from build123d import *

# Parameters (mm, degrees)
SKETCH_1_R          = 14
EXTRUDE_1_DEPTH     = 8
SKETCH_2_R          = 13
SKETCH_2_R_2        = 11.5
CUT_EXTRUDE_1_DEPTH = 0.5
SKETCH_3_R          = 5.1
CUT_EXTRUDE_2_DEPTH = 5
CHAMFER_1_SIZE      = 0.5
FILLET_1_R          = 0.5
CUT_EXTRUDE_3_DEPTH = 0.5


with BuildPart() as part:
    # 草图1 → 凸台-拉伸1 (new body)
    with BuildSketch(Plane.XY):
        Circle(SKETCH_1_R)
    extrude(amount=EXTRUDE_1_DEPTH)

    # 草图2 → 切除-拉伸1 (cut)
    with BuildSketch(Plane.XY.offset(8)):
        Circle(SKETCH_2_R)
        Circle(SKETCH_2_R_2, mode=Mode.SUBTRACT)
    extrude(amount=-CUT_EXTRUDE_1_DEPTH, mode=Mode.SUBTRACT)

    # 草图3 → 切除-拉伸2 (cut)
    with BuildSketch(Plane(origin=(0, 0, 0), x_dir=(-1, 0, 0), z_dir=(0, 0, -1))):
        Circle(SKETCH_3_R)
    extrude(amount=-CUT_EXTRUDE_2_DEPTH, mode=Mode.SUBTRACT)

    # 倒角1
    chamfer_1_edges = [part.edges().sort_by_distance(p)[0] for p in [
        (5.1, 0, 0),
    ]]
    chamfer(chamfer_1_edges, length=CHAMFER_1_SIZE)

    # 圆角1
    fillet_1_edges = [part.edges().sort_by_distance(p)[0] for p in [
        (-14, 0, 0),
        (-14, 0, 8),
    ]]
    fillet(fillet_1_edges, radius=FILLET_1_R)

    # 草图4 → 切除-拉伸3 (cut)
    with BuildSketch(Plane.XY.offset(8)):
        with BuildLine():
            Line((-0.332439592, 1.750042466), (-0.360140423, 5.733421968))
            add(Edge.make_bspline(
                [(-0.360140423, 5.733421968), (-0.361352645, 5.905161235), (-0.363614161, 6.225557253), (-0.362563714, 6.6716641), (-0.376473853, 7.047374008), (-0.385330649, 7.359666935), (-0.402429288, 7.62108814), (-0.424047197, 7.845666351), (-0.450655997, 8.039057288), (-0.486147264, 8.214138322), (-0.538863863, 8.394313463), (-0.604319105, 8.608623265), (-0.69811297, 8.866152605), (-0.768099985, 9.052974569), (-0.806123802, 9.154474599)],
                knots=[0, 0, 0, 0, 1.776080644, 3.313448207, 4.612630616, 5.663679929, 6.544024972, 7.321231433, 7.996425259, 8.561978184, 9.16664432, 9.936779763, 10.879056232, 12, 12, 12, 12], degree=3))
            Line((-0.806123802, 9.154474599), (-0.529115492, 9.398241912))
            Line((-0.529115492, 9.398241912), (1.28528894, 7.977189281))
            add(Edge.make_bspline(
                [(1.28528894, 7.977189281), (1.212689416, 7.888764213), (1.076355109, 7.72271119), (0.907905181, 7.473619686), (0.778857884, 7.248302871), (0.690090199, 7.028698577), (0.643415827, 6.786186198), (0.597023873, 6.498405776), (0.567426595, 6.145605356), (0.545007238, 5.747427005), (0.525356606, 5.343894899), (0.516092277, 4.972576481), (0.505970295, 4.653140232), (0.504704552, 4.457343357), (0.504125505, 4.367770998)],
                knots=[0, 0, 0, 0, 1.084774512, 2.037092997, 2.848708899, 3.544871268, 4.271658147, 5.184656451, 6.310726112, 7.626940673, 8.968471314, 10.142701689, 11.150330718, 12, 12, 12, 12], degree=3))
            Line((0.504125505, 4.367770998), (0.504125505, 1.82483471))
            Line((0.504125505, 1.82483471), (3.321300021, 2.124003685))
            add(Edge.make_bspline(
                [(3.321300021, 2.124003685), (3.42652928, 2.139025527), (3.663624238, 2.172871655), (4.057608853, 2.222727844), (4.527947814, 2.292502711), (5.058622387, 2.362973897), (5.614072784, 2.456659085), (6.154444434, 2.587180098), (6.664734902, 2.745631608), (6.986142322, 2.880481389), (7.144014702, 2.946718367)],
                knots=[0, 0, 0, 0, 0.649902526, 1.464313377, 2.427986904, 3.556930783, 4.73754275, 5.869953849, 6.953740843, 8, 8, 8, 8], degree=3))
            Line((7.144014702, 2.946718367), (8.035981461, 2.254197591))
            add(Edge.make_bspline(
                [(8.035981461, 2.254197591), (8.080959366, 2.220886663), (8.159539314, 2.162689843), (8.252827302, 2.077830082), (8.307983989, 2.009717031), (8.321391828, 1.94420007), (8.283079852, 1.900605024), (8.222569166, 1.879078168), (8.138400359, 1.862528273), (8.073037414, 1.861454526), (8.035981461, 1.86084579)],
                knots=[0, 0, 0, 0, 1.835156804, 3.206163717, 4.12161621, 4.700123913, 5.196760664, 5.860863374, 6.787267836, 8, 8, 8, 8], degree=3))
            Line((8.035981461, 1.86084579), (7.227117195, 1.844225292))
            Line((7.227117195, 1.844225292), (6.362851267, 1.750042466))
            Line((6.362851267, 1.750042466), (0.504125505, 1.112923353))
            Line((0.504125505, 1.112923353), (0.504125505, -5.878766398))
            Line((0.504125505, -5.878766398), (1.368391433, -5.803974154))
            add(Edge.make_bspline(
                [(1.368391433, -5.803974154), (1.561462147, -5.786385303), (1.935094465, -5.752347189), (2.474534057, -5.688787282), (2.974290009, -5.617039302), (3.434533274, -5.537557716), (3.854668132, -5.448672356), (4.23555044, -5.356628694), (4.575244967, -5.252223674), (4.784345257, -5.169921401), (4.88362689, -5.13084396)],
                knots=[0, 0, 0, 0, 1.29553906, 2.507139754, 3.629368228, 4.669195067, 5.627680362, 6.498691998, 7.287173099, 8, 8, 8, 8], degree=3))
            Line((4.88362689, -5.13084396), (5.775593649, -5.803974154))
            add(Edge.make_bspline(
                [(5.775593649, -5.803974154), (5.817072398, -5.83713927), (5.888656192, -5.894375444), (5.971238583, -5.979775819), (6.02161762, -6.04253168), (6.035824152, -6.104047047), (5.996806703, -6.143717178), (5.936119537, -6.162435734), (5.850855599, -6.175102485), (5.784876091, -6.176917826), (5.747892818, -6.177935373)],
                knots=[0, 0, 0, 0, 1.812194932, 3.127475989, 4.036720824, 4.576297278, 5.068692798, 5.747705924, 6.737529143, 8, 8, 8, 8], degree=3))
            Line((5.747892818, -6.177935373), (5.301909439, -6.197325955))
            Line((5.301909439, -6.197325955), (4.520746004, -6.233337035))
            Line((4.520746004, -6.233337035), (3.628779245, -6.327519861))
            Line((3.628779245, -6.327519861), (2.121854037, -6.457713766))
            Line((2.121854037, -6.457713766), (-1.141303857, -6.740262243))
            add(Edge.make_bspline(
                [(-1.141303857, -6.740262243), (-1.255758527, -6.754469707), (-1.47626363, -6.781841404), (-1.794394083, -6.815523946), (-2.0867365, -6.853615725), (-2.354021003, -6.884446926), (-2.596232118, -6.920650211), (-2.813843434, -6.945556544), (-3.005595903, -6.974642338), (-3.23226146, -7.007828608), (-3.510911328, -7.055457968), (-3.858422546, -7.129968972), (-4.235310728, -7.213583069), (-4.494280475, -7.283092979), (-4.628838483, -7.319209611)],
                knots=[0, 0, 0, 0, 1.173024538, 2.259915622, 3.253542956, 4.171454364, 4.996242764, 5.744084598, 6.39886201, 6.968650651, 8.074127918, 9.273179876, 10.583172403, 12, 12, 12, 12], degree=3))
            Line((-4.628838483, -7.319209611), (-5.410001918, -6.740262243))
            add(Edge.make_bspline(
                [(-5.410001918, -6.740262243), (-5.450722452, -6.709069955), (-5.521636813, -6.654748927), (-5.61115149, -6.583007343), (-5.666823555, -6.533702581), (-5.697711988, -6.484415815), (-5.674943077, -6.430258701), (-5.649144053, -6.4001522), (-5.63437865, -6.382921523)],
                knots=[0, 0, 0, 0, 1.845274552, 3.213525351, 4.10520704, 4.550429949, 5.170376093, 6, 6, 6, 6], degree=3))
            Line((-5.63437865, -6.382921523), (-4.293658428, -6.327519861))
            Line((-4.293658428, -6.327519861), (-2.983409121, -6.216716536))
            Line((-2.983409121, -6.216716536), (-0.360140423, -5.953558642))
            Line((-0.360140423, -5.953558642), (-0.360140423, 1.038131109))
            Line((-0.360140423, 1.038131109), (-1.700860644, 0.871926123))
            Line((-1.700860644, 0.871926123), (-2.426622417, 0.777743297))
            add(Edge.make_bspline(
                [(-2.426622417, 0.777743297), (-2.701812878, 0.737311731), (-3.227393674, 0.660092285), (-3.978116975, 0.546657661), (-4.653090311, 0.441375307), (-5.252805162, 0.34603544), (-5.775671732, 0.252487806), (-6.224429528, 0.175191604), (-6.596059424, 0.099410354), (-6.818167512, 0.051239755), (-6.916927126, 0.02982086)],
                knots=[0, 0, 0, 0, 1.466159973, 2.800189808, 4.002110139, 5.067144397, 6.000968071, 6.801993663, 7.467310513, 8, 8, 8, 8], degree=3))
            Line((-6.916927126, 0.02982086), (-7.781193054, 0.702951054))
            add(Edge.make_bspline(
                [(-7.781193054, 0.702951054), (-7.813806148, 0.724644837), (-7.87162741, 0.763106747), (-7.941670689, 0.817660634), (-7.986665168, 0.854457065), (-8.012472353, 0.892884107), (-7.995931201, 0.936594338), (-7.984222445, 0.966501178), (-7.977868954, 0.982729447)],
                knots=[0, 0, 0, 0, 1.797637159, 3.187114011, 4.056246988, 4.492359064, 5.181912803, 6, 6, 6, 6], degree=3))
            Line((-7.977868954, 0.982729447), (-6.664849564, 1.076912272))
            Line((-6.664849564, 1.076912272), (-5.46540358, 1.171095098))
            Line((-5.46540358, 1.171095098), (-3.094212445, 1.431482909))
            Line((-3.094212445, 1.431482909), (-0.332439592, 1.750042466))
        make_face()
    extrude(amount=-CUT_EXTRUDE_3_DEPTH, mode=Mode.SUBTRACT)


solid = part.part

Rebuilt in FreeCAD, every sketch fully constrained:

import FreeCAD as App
import Part
import Sketcher

V = App.Vector
Q = App.Units.Quantity


def edges_at(feature, points):
    """Names of the edges that pass closest to the given points."""
    edges = feature.Shape.Edges
    near = lambda p: min(range(len(edges)), key=lambda i: edges[i].distToShape(Part.Vertex(*p))[0])
    return sorted({f"Edge{near(p) + 1}" for p in points})

doc = App.newDocument("Part")
body = doc.addObject("PartDesign::Body", "Body")

# Sketch on XY plane
sketch1 = body.newObject("Sketcher::SketchObject", "Sketch")
sketch1.AttachmentSupport = (doc.getObject("XY_Plane"), [""])
sketch1.MapMode = "FlatFace"
sketch1.addGeometry(Part.Circle(V(0, 0, 0), V(0, 0, 1), 14), False)
sketch1.addConstraint(Sketcher.Constraint("Coincident", 0, 3, -1, 1))
sketch1.addConstraint(Sketcher.Constraint("Diameter", 0, Q("28 mm")))
pad1 = body.newObject("PartDesign::Pad", "Pad")
pad1.Profile = sketch1
pad1.Length = 8

# Sketch on XY plane
sketch2 = body.newObject("Sketcher::SketchObject", "Sketch001")
sketch2.AttachmentSupport = (doc.getObject("XY_Plane"), [""])
sketch2.MapMode = "FlatFace"
sketch2.AttachmentOffset = App.Placement(V(0, 0, 8), App.Rotation())
sketch2.addGeometry(Part.Circle(V(0, 0, 0), V(0, 0, 1), 13), False)
sketch2.addGeometry(Part.Circle(V(0, 0, 0), V(0, 0, 1), 12), False)
sketch2.addConstraint(Sketcher.Constraint("Coincident", 0, 3, -1, 1))
sketch2.addConstraint(Sketcher.Constraint("Coincident", 1, 3, -1, 1))
sketch2.addConstraint(Sketcher.Constraint("Diameter", 0, Q("26 mm")))
sketch2.addConstraint(Sketcher.Constraint("Diameter", 1, Q("23 mm")))
pocket1 = body.newObject("PartDesign::Pocket", "Pocket")
pocket1.Profile = sketch2
pocket1.Length = 0.5

# Sketch on XY plane
sketch3 = body.newObject("Sketcher::SketchObject", "Sketch002")
sketch3.AttachmentSupport = (doc.getObject("XY_Plane"), [""])
sketch3.MapMode = "FlatFace"
sketch3.addGeometry(Part.Circle(V(0, 0, 0), V(0, 0, 1), 5), False)
sketch3.addConstraint(Sketcher.Constraint("Coincident", 0, 3, -1, 1))
sketch3.addConstraint(Sketcher.Constraint("Diameter", 0, Q("10.2 mm")))
pocket2 = body.newObject("PartDesign::Pocket", "Pocket001")
pocket2.Profile = sketch3
pocket2.Length = 5
pocket2.Reversed = True
doc.recompute()

chamfer = body.newObject("PartDesign::Chamfer", "Chamfer")
chamfer.Base = (pocket2, edges_at(pocket2, [(5.1, 0, 0)]))
chamfer.Size = 0.5
doc.recompute()

fillet = body.newObject("PartDesign::Fillet", "Fillet")
fillet.Base = (chamfer, edges_at(chamfer, [(-14, 0, 0), (-14, 0, 8)]))
fillet.Radius = 0.5

# Sketch on XY plane
sketch4 = body.newObject("Sketcher::SketchObject", "Sketch003")
sketch4.AttachmentSupport = (doc.getObject("XY_Plane"), [""])
sketch4.MapMode = "FlatFace"
sketch4.AttachmentOffset = App.Placement(V(0, 0, 8), App.Rotation())
sketch4.addGeometry(Part.LineSegment(V(-0.36014, 5.733422, 0), V(-0.33244, 1.750042, 0)), False)
sketch4.addGeometry(Part.LineSegment(V(-0.33244, 1.750042, 0), V(-3.094212, 1.431483, 0)), False)
sketch4.addGeometry(Part.LineSegment(V(-3.094212, 1.431483, 0), V(-5.465404, 1.171095, 0)), False)
sketch4.addGeometry(Part.LineSegment(V(-5.465404, 1.171095, 0), V(-6.66485, 1.076912, 0)), False)
sketch4.addGeometry(Part.LineSegment(V(-6.66485, 1.076912, 0), V(-7.977869, 0.982729, 0)), False)
sketch4.addGeometry(Part.BSplineCurve([V(-7.781193, 0.702951, 0), V(-7.813806, 0.724645, 0), V(-7.871627, 0.763107, 0), V(-7.941671, 0.817661, 0), V(-7.986665, 0.854457, 0), V(-8.012472, 0.892884, 0), V(-7.995931, 0.936594, 0), V(-7.984222, 0.966501, 0), V(-7.977869, 0.982729, 0)], [4, 1, 1, 1, 1, 1, 4], [0, 1.797637159, 3.187114011, 4.056246988, 4.492359064, 5.181912803, 6], False, 3, [1, 1, 1, 1, 1, 1, 1, 1, 1], False), False)
sketch4.addGeometry(Part.LineSegment(V(-7.781193, 0.702951, 0), V(-6.916927, 0.029821, 0)), False)
sketch4.addGeometry(Part.BSplineCurve([V(-2.426622, 0.777743, 0), V(-2.701813, 0.737312, 0), V(-3.227394, 0.660092, 0), V(-3.978117, 0.546658, 0), V(-4.65309, 0.441375, 0), V(-5.252805, 0.346035, 0), V(-5.775672, 0.252488, 0), V(-6.22443, 0.175192, 0), V(-6.596059, 0.09941, 0), V(-6.818168, 0.05124, 0), V(-6.916927, 0.029821, 0)], [4, 1, 1, 1, 1, 1, 1, 1, 4], [0, 1.466159973, 2.800189808, 4.002110139, 5.067144397, 6.000968071, 6.801993663, 7.467310513, 8], False, 3, [1, 1, 1, 1, 1, 1, 1, 1, 1, 1, 1], False), False)
sketch4.addGeometry(Part.LineSegment(V(-2.426622, 0.777743, 0), V(-1.700861, 0.871926, 0)), False)
sketch4.addGeometry(Part.LineSegment(V(-1.700861, 0.871926, 0), V(-0.36014, 1.038131, 0)), False)
sketch4.addGeometry(Part.LineSegment(V(-0.36014, 1.038131, 0), V(-0.36014, -5.953559, 0)), False)
sketch4.addGeometry(Part.LineSegment(V(-0.36014, -5.953559, 0), V(-2.983409, -6.216717, 0)), False)
sketch4.addGeometry(Part.LineSegment(V(-2.983409, -6.216717, 0), V(-4.293658, -6.32752, 0)), False)
sketch4.addGeometry(Part.LineSegment(V(-4.293658, -6.32752, 0), V(-5.634379, -6.382922, 0)), False)
sketch4.addGeometry(Part.BSplineCurve([V(-5.410002, -6.740262, 0), V(-5.450722, -6.70907, 0), V(-5.521637, -6.654749, 0), V(-5.611151, -6.583007, 0), V(-5.666824, -6.533703, 0), V(-5.697712, -6.484416, 0), V(-5.674943, -6.430259, 0), V(-5.649144, -6.400152, 0), V(-5.634379, -6.382922, 0)], [4, 1, 1, 1, 1, 1, 4], [0, 1.845274552, 3.213525351, 4.10520704, 4.550429949, 5.170376093, 6], False, 3, [1, 1, 1, 1, 1, 1, 1, 1, 1], False), False)
sketch4.addGeometry(Part.LineSegment(V(-5.410002, -6.740262, 0), V(-4.628838, -7.31921, 0)), False)
sketch4.addGeometry(Part.BSplineCurve([V(-1.141304, -6.740262, 0), V(-1.255759, -6.75447, 0), V(-1.476264, -6.781841, 0), V(-1.794394, -6.815524, 0), V(-2.086737, -6.853616, 0), V(-2.354021, -6.884447, 0), V(-2.596232, -6.92065, 0), V(-2.813843, -6.945557, 0), V(-3.005596, -6.974642, 0), V(-3.232261, -7.007829, 0), V(-3.510911, -7.055458, 0), V(-3.858423, -7.129969, 0), V(-4.235311, -7.213583, 0), V(-4.49428, -7.283093, 0), V(-4.628838, -7.31921, 0)], [4, 1, 1, 1, 1, 1, 1, 1, 1, 1, 1, 1, 4], [0, 1.173024538, 2.259915622, 3.253542956, 4.171454364, 4.996242764, 5.744084598, 6.39886201, 6.968650651, 8.074127918, 9.273179876, 10.583172403, 12], False, 3, [1, 1, 1, 1, 1, 1, 1, 1, 1, 1, 1, 1, 1, 1, 1], False), False)
sketch4.addGeometry(Part.LineSegment(V(-1.141304, -6.740262, 0), V(2.121854, -6.457714, 0)), False)
sketch4.addGeometry(Part.LineSegment(V(2.121854, -6.457714, 0), V(3.628779, -6.32752, 0)), False)
sketch4.addGeometry(Part.LineSegment(V(3.628779, -6.32752, 0), V(4.520746, -6.233337, 0)), False)
sketch4.addGeometry(Part.LineSegment(V(4.520746, -6.233337, 0), V(5.301909, -6.197326, 0)), False)
sketch4.addGeometry(Part.LineSegment(V(5.301909, -6.197326, 0), V(5.747893, -6.177935, 0)), False)
sketch4.addGeometry(Part.BSplineCurve([V(5.775594, -5.803974, 0), V(5.817072, -5.837139, 0), V(5.888656, -5.894375, 0), V(5.971239, -5.979776, 0), V(6.021618, -6.042532, 0), V(6.035824, -6.104047, 0), V(5.996807, -6.143717, 0), V(5.93612, -6.162436, 0), V(5.850856, -6.175102, 0), V(5.784876, -6.176918, 0), V(5.747893, -6.177935, 0)], [4, 1, 1, 1, 1, 1, 1, 1, 4], [0, 1.812194932, 3.127475989, 4.036720824, 4.576297278, 5.068692798, 5.747705924, 6.737529143, 8], False, 3, [1, 1, 1, 1, 1, 1, 1, 1, 1, 1, 1], False), False)
sketch4.addGeometry(Part.LineSegment(V(5.775594, -5.803974, 0), V(4.883627, -5.130844, 0)), False)
sketch4.addGeometry(Part.BSplineCurve([V(1.368391, -5.803974, 0), V(1.561462, -5.786385, 0), V(1.935094, -5.752347, 0), V(2.474534, -5.688787, 0), V(2.97429, -5.617039, 0), V(3.434533, -5.537558, 0), V(3.854668, -5.448672, 0), V(4.23555, -5.356629, 0), V(4.575245, -5.252224, 0), V(4.784345, -5.169921, 0), V(4.883627, -5.130844, 0)], [4, 1, 1, 1, 1, 1, 1, 1, 4], [0, 1.29553906, 2.507139754, 3.629368228, 4.669195067, 5.627680362, 6.498691998, 7.287173099, 8], False, 3, [1, 1, 1, 1, 1, 1, 1, 1, 1, 1, 1], False), False)
sketch4.addGeometry(Part.LineSegment(V(1.368391, -5.803974, 0), V(0.504126, -5.878766, 0)), False)
sketch4.addGeometry(Part.LineSegment(V(0.504126, -5.878766, 0), V(0.504126, 1.112923, 0)), False)
sketch4.addGeometry(Part.LineSegment(V(0.504126, 1.112923, 0), V(6.362851, 1.750042, 0)), False)
sketch4.addGeometry(Part.LineSegment(V(6.362851, 1.750042, 0), V(7.227117, 1.844225, 0)), False)
sketch4.addGeometry(Part.LineSegment(V(7.227117, 1.844225, 0), V(8.035981, 1.860846, 0)), False)
sketch4.addGeometry(Part.BSplineCurve([V(8.035981, 2.254198, 0), V(8.080959, 2.220887, 0), V(8.159539, 2.16269, 0), V(8.252827, 2.07783, 0), V(8.307984, 2.009717, 0), V(8.321392, 1.9442, 0), V(8.28308, 1.900605, 0), V(8.222569, 1.879078, 0), V(8.1384, 1.862528, 0), V(8.073037, 1.861455, 0), V(8.035981, 1.860846, 0)], [4, 1, 1, 1, 1, 1, 1, 1, 4], [0, 1.835156804, 3.206163717, 4.12161621, 4.700123913, 5.196760664, 5.860863374, 6.787267836, 8], False, 3, [1, 1, 1, 1, 1, 1, 1, 1, 1, 1, 1], False), False)
sketch4.addGeometry(Part.LineSegment(V(8.035981, 2.254198, 0), V(7.144015, 2.946718, 0)), False)
sketch4.addGeometry(Part.BSplineCurve([V(3.3213, 2.124004, 0), V(3.426529, 2.139026, 0), V(3.663624, 2.172872, 0), V(4.057609, 2.222728, 0), V(4.527948, 2.292503, 0), V(5.058622, 2.362974, 0), V(5.614073, 2.456659, 0), V(6.154444, 2.58718, 0), V(6.664735, 2.745632, 0), V(6.986142, 2.880481, 0), V(7.144015, 2.946718, 0)], [4, 1, 1, 1, 1, 1, 1, 1, 4], [0, 0.649902526, 1.464313377, 2.427986904, 3.556930783, 4.73754275, 5.869953849, 6.953740843, 8], False, 3, [1, 1, 1, 1, 1, 1, 1, 1, 1, 1, 1], False), False)
sketch4.addGeometry(Part.LineSegment(V(3.3213, 2.124004, 0), V(0.504126, 1.824835, 0)), False)
sketch4.addGeometry(Part.LineSegment(V(0.504126, 1.824835, 0), V(0.504126, 4.367771, 0)), False)
sketch4.addGeometry(Part.BSplineCurve([V(1.285289, 7.977189, 0), V(1.212689, 7.888764, 0), V(1.076355, 7.722711, 0), V(0.907905, 7.47362, 0), V(0.778858, 7.248303, 0), V(0.69009, 7.028699, 0), V(0.643416, 6.786186, 0), V(0.597024, 6.498406, 0), V(0.567427, 6.145605, 0), V(0.545007, 5.747427, 0), V(0.525357, 5.343895, 0), V(0.516092, 4.972576, 0), V(0.50597, 4.65314, 0), V(0.504705, 4.457343, 0), V(0.504126, 4.367771, 0)], [4, 1, 1, 1, 1, 1, 1, 1, 1, 1, 1, 1, 4], [0, 1.084774512, 2.037092997, 2.848708899, 3.544871268, 4.271658147, 5.184656451, 6.310726112, 7.626940673, 8.968471314, 10.142701689, 11.150330718, 12], False, 3, [1, 1, 1, 1, 1, 1, 1, 1, 1, 1, 1, 1, 1, 1, 1], False), False)
sketch4.addGeometry(Part.LineSegment(V(1.285289, 7.977189, 0), V(-0.529115, 9.398242, 0)), False)
sketch4.addGeometry(Part.LineSegment(V(-0.529115, 9.398242, 0), V(-0.806124, 9.154475, 0)), False)
sketch4.addGeometry(Part.BSplineCurve([V(-0.36014, 5.733422, 0), V(-0.361353, 5.905161, 0), V(-0.363614, 6.225557, 0), V(-0.362564, 6.671664, 0), V(-0.376474, 7.047374, 0), V(-0.385331, 7.359667, 0), V(-0.402429, 7.621088, 0), V(-0.424047, 7.845666, 0), V(-0.450656, 8.039057, 0), V(-0.486147, 8.214138, 0), V(-0.538864, 8.394313, 0), V(-0.604319, 8.608623, 0), V(-0.698113, 8.866153, 0), V(-0.7681, 9.052975, 0), V(-0.806124, 9.154475, 0)], [4, 1, 1, 1, 1, 1, 1, 1, 1, 1, 1, 1, 4], [0, 1.776080644, 3.313448207, 4.612630616, 5.663679929, 6.544024972, 7.321231433, 7.996425259, 8.561978184, 9.16664432, 9.936779763, 10.879056232, 12], False, 3, [1, 1, 1, 1, 1, 1, 1, 1, 1, 1, 1, 1, 1, 1, 1], False), False)
sketch4.addConstraint(Sketcher.Constraint("Block", 5))
sketch4.addConstraint(Sketcher.Constraint("Block", 7))
sketch4.addConstraint(Sketcher.Constraint("Block", 14))
sketch4.addConstraint(Sketcher.Constraint("Block", 16))
sketch4.addConstraint(Sketcher.Constraint("Block", 22))
sketch4.addConstraint(Sketcher.Constraint("Block", 24))
sketch4.addConstraint(Sketcher.Constraint("Block", 30))
sketch4.addConstraint(Sketcher.Constraint("Block", 32))
sketch4.addConstraint(Sketcher.Constraint("Block", 35))
sketch4.addConstraint(Sketcher.Constraint("Block", 38))
sketch4.addConstraint(Sketcher.Constraint("Coincident", 0, 2, 1, 1))
sketch4.addConstraint(Sketcher.Constraint("Coincident", 1, 2, 2, 1))
sketch4.addConstraint(Sketcher.Constraint("Coincident", 2, 2, 3, 1))
sketch4.addConstraint(Sketcher.Constraint("Coincident", 3, 2, 4, 1))
sketch4.addConstraint(Sketcher.Constraint("Coincident", 4, 2, 5, 2))
sketch4.addConstraint(Sketcher.Constraint("Coincident", 5, 1, 6, 1))
sketch4.addConstraint(Sketcher.Constraint("Coincident", 6, 2, 7, 2))
sketch4.addConstraint(Sketcher.Constraint("Coincident", 7, 1, 8, 1))
sketch4.addConstraint(Sketcher.Constraint("Coincident", 8, 2, 9, 1))
sketch4.addConstraint(Sketcher.Constraint("Coincident", 9, 2, 10, 1))
sketch4.addConstraint(Sketcher.Constraint("Coincident", 10, 2, 11, 1))
sketch4.addConstraint(Sketcher.Constraint("Coincident", 11, 2, 12, 1))
sketch4.addConstraint(Sketcher.Constraint("Coincident", 12, 2, 13, 1))
sketch4.addConstraint(Sketcher.Constraint("Coincident", 13, 2, 14, 2))
sketch4.addConstraint(Sketcher.Constraint("Coincident", 14, 1, 15, 1))
sketch4.addConstraint(Sketcher.Constraint("Coincident", 15, 2, 16, 2))
sketch4.addConstraint(Sketcher.Constraint("Coincident", 16, 1, 17, 1))
sketch4.addConstraint(Sketcher.Constraint("Coincident", 17, 2, 18, 1))
sketch4.addConstraint(Sketcher.Constraint("Coincident", 18, 2, 19, 1))
sketch4.addConstraint(Sketcher.Constraint("Coincident", 19, 2, 20, 1))
sketch4.addConstraint(Sketcher.Constraint("Coincident", 20, 2, 21, 1))
sketch4.addConstraint(Sketcher.Constraint("Coincident", 21, 2, 22, 2))
sketch4.addConstraint(Sketcher.Constraint("Coincident", 22, 1, 23, 1))
sketch4.addConstraint(Sketcher.Constraint("Coincident", 23, 2, 24, 2))
sketch4.addConstraint(Sketcher.Constraint("Coincident", 24, 1, 25, 1))
sketch4.addConstraint(Sketcher.Constraint("Coincident", 25, 2, 26, 1))
sketch4.addConstraint(Sketcher.Constraint("Coincident", 26, 2, 27, 1))
sketch4.addConstraint(Sketcher.Constraint("Coincident", 27, 2, 28, 1))
sketch4.addConstraint(Sketcher.Constraint("Coincident", 28, 2, 29, 1))
sketch4.addConstraint(Sketcher.Constraint("Coincident", 29, 2, 30, 2))
sketch4.addConstraint(Sketcher.Constraint("Coincident", 30, 1, 31, 1))
sketch4.addConstraint(Sketcher.Constraint("Coincident", 31, 2, 32, 2))
sketch4.addConstraint(Sketcher.Constraint("Coincident", 32, 1, 33, 1))
sketch4.addConstraint(Sketcher.Constraint("Coincident", 33, 2, 34, 1))
sketch4.addConstraint(Sketcher.Constraint("Coincident", 34, 2, 35, 2))
sketch4.addConstraint(Sketcher.Constraint("Coincident", 35, 1, 36, 1))
sketch4.addConstraint(Sketcher.Constraint("Coincident", 36, 2, 37, 1))
sketch4.addConstraint(Sketcher.Constraint("Coincident", 37, 2, 38, 2))
sketch4.addConstraint(Sketcher.Constraint("Coincident", 38, 1, 0, 1))
sketch4.addConstraint(Sketcher.Constraint("Vertical", 10))
sketch4.addConstraint(Sketcher.Constraint("Vertical", 26))
sketch4.addConstraint(Sketcher.Constraint("Vertical", 34))
sketch4.addConstraint(Sketcher.Constraint("DistanceY", 10, 2, 10, 1, Q("6.99169 mm")))
sketch4.addConstraint(Sketcher.Constraint("DistanceY", 26, 1, 26, 2, Q("6.99169 mm")))
sketch4.addConstraint(Sketcher.Constraint("DistanceX", 9, 2, 0, 2, Q("0.027701 mm")))
sketch4.addConstraint(Sketcher.Constraint("DistanceY", 10, 2, 0, 2, Q("7.703601 mm")))
sketch4.addConstraint(Sketcher.Constraint("DistanceY", 11, 2, 1, 2, Q("7.648199 mm")))
sketch4.addConstraint(Sketcher.Constraint("DistanceY", 13, 2, 12, 2, Q("0.055402 mm")))
sketch4.addConstraint(Sketcher.Constraint("DistanceX", 15, 2, 10, 2, Q("4.268698 mm")))
sketch4.addConstraint(Sketcher.Constraint("DistanceY", 19, 2, 21, 2, Q("0.055402 mm")))
sketch4.addConstraint(Sketcher.Constraint("DistanceY", 26, 2, 28, 2, Q("0.731302 mm")))
sketch4.addConstraint(Sketcher.Constraint("DistanceY", 0, 2, 36, 2, Q("7.648199 mm")))
sketch4.addConstraint(Sketcher.Constraint("Distance", 3, Q("1.203138 mm")))
sketch4.addConstraint(Sketcher.Constraint("Distance", 18, Q("1.512539 mm")))
sketch4.addConstraint(Sketcher.Constraint("Distance", 36, Q("2.304659 mm")))
sketch4.addConstraint(Sketcher.Constraint("DistanceY", 34, 1, 34, 2, Q("2.542936 mm")))
sketch4.addConstraint(Sketcher.Constraint("DistanceX", 3, 2, -1, 1, Q("6.66485 mm")))
sketch4.addConstraint(Sketcher.Constraint("DistanceX", 8, 2, -1, 1, Q("1.700861 mm")))
sketch4.addConstraint(Sketcher.Constraint("DistanceY", -1, 1, 9, 2, Q("1.038131 mm")))
sketch4.addConstraint(Sketcher.Constraint("DistanceX", 11, 2, -1, 1, Q("2.983409 mm")))
sketch4.addConstraint(Sketcher.Constraint("DistanceX", 12, 2, -1, 1, Q("4.293658 mm")))
sketch4.addConstraint(Sketcher.Constraint("DistanceX", -1, 1, 18, 2, Q("3.628779 mm")))
sketch4.addConstraint(Sketcher.Constraint("DistanceY", 18, 2, -1, 1, Q("6.32752 mm")))
sketch4.addConstraint(Sketcher.Constraint("DistanceX", -1, 1, 20, 2, Q("5.301909 mm")))
sketch4.addConstraint(Sketcher.Constraint("DistanceX", -1, 1, 27, 2, Q("6.362851 mm")))
sketch4.addConstraint(Sketcher.Constraint("DistanceY", 1, 2, 0, 2, Q("0.31856 mm")))
sketch4.addConstraint(Sketcher.Constraint("DistanceX", 2, 2, 1, 2, Q("2.371191 mm")))
sketch4.addConstraint(Sketcher.Constraint("DistanceY", 3, 2, 1, 2, Q("0.354571 mm")))
sketch4.addConstraint(Sketcher.Constraint("DistanceX", 1, 2, 8, 2, Q("1.393352 mm")))
sketch4.addConstraint(Sketcher.Constraint("DistanceY", 8, 2, 2, 2, Q("0.299169 mm")))
sketch4.addConstraint(Sketcher.Constraint("DistanceX", 17, 2, 19, 2, Q("2.398892 mm")))
sketch4.addConstraint(Sketcher.Constraint("DistanceY", 19, 2, 20, 2, Q("0.036011 mm")))
sketch4.addConstraint(Sketcher.Constraint("DistanceX", 17, 2, 21, 2, Q("3.626039 mm")))
sketch4.addConstraint(Sketcher.Constraint("DistanceX", 25, 2, 17, 2, Q("1.617729 mm")))
sketch4.addConstraint(Sketcher.Constraint("DistanceY", 11, 2, 25, 2, Q("0.33795 mm")))
sketch4.addConstraint(Sketcher.Constraint("DistanceY", 26, 2, 27, 2, Q("0.637119 mm")))
sketch4.addConstraint(Sketcher.Constraint("DistanceX", 26, 2, 28, 2, Q("6.722992 mm")))
pocket3 = body.newObject("PartDesign::Pocket", "Pocket002")
pocket3.Profile = sketch4
pocket3.Length = 0.5

doc.recompute()
